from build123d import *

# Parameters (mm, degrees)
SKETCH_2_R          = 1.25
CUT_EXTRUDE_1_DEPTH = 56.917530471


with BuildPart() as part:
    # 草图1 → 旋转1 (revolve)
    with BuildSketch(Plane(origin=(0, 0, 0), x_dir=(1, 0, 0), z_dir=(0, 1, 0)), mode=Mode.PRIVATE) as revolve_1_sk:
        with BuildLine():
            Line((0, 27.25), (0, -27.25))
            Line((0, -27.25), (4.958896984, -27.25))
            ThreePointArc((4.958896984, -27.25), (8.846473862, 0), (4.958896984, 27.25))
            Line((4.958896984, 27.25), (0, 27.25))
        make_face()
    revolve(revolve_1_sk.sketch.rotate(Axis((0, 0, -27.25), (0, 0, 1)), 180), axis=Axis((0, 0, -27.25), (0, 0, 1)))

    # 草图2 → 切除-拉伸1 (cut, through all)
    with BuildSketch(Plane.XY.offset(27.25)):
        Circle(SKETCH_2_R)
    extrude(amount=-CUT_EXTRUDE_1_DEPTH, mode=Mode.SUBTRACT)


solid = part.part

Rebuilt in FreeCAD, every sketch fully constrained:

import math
import FreeCAD as App
import Part
import Sketcher
from FreeCAD import Vector

doc = App.newDocument("Part")
body = doc.addObject("PartDesign::Body", "Body")

sketch1 = doc.addObject("Sketcher::SketchObject", "Sketch")
body.addObject(sketch1)
sketch1.AttachmentSupport = (doc.XZ_Plane, [""])
sketch1.MapMode = "FlatFace"
sketch1.addGeometry([
    Part.LineSegment(Vector(0, -27.2, 0), Vector(0, 27.2, 0)),
    Part.LineSegment(Vector(0, 27.2, 0), Vector(5, 27.2, 0)),
    Part.ArcOfCircle(Part.Circle(Vector(-88.6, 0, 0), Vector(0, 0, 1), 97.4), math.radians(-16), math.radians(16)),
    Part.LineSegment(Vector(5, -27.2, 0), Vector(0, -27.2, 0)),
], False)
sketch1.addConstraint([
    Sketcher.Constraint("Coincident", 0, 2, 1, 1),
    Sketcher.Constraint("Coincident", 1, 2, 2, 2),
    Sketcher.Constraint("Coincident", 2, 1, 3, 1),
    Sketcher.Constraint("Coincident", 3, 2, 0, 1),
    Sketcher.Constraint("Vertical", 0),
    Sketcher.Constraint("Horizontal", 1),
    Sketcher.Constraint("Horizontal", 3),
    Sketcher.Constraint("Symmetric", 0, 2, 3, 2, -1, 1),
    Sketcher.Constraint("PointOnObject", 2, 3, -1),
    Sketcher.Constraint("DistanceY", 0, 1, 0, 2, 54.5),
    Sketcher.Constraint("Radius", 2, 97.448331),
    Sketcher.Constraint("DistanceX", 1, 1, 1, 2, 4.958897),
])
revolution = doc.addObject("PartDesign::Revolution", "Revolution")
body.addObject(revolution)
revolution.Profile = sketch1
revolution.ReferenceAxis = (sketch1, ["V_Axis"])
revolution.Angle = 360

sketch2 = doc.addObject("Sketcher::SketchObject", "Sketch001")
body.addObject(sketch2)
sketch2.AttachmentSupport = (doc.XY_Plane, [""])
sketch2.MapMode = "FlatFace"
sketch2.AttachmentOffset = App.Placement(Vector(0, 0, 27.25), App.Rotation())
sketch2.addGeometry(Part.Circle(Vector(0, 0, 0), Vector(0, 0, 1), 1.2), False)
sketch2.addConstraint([
    Sketcher.Constraint("Coincident", 0, 3, -1, 1),
    Sketcher.Constraint("Diameter", 0, 2.5),
])
pocket1 = doc.addObject("PartDesign::Pocket", "Pocket")
body.addObject(pocket1)
pocket1.Profile = sketch2
pocket1.Type = "ThroughAll"

doc.recompute()
